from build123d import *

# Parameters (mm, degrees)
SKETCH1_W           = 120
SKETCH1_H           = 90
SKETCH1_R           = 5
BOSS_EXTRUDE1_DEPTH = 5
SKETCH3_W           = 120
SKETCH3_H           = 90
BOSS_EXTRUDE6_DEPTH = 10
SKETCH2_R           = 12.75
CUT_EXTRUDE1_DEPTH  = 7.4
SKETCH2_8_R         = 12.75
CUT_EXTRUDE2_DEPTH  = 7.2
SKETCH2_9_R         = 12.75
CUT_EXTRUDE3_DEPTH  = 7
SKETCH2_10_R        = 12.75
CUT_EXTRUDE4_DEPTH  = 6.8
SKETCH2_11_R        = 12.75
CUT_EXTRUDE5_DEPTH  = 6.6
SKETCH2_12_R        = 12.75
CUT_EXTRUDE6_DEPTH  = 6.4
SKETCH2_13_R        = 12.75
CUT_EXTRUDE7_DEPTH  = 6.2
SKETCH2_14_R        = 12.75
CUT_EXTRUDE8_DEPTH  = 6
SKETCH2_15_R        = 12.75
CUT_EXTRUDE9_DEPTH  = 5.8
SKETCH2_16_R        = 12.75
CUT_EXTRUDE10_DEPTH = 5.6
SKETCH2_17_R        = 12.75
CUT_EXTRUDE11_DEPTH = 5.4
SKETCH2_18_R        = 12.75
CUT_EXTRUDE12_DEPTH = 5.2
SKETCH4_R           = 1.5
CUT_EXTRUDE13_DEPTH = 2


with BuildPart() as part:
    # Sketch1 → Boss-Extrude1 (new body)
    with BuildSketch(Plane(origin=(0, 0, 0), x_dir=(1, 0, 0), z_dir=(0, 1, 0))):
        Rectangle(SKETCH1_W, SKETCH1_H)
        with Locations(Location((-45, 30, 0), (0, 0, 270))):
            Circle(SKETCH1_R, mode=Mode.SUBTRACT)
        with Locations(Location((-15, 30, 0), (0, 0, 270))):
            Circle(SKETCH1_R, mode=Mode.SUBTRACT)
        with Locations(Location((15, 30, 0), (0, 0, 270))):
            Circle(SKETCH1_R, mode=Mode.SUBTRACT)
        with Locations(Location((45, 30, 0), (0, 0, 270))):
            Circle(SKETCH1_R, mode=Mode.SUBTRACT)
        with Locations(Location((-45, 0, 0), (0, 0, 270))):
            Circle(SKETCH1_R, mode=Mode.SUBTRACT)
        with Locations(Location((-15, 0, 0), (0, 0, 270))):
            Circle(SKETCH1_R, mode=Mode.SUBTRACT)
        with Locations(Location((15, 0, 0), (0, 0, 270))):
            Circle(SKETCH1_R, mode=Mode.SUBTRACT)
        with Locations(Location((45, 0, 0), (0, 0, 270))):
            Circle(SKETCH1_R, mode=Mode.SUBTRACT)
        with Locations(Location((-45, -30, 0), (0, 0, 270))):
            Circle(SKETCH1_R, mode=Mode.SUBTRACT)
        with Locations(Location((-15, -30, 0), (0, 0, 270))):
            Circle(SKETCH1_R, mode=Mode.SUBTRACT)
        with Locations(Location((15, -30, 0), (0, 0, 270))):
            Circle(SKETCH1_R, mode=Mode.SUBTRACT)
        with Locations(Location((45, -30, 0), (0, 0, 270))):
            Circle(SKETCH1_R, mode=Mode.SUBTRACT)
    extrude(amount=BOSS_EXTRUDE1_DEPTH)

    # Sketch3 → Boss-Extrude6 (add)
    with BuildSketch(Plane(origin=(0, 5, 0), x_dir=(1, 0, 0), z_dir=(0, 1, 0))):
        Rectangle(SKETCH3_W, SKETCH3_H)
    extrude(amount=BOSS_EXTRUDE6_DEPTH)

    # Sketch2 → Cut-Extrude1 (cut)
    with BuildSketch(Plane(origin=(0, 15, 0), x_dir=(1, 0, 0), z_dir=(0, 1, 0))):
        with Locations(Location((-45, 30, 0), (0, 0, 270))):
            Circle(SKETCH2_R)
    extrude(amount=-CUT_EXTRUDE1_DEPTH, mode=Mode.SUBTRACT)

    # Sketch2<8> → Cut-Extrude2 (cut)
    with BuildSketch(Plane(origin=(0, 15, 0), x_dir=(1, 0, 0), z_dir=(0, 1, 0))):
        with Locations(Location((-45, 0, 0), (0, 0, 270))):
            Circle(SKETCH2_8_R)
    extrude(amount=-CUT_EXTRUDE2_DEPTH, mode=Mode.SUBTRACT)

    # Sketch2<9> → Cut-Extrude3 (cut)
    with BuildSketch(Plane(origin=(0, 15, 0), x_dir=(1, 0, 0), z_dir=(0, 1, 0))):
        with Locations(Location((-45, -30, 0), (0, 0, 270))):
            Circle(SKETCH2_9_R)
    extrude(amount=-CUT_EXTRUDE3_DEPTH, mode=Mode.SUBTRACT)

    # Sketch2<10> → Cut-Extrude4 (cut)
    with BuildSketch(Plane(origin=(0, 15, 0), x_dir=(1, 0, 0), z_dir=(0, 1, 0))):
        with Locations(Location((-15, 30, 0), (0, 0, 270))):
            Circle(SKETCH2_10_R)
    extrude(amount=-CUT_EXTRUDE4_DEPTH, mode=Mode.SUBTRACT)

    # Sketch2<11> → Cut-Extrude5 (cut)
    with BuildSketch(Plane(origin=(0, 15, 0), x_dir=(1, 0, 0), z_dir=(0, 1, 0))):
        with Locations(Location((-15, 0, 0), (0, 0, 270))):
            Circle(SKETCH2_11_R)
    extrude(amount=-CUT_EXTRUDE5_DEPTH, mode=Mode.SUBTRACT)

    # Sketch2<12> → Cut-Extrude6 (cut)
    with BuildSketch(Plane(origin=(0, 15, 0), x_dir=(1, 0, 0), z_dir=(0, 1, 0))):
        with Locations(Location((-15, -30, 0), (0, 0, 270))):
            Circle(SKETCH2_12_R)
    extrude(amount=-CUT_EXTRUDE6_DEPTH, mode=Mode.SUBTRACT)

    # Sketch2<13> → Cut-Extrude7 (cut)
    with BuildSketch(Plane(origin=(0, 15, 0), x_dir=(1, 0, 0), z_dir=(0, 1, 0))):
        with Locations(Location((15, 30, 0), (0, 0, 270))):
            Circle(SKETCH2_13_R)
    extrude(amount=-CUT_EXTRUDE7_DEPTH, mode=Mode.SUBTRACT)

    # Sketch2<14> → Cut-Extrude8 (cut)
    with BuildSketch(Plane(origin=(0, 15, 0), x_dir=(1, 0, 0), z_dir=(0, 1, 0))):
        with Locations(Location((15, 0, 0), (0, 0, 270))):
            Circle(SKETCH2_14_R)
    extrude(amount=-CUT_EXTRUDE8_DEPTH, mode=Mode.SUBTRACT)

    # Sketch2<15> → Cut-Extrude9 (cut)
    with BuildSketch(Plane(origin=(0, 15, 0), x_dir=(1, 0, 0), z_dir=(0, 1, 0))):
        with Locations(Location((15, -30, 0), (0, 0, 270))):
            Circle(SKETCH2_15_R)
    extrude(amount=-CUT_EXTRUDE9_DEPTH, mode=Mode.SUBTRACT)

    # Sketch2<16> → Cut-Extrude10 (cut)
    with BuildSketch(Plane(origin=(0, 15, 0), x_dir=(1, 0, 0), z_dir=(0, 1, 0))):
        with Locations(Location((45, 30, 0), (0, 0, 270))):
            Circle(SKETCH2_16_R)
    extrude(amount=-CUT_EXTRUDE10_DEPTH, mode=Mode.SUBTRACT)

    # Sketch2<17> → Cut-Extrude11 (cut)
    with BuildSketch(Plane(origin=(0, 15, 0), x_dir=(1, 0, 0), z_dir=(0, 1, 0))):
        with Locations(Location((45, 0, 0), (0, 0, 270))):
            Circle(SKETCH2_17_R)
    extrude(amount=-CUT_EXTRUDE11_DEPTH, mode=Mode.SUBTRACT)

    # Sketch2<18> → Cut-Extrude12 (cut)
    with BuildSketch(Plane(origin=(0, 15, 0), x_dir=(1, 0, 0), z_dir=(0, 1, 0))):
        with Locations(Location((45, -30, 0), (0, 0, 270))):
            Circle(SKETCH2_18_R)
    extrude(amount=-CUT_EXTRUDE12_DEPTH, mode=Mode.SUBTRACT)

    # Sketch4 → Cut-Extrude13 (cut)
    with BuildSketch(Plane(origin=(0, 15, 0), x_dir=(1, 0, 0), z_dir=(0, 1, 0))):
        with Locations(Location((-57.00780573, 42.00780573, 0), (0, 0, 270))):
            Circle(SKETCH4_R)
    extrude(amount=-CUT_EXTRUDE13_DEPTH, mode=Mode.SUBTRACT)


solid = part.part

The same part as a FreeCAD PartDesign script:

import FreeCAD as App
import Part
import Sketcher

V = App.Vector
Q = App.Units.Quantity

doc = App.newDocument("Part")
body = doc.addObject("PartDesign::Body", "Body")

# Sketch on XZ plane
sketch1 = body.newObject("Sketcher::SketchObject", "Sketch")
sketch1.AttachmentSupport = (doc.getObject("XZ_Plane"), [""])
sketch1.MapMode = "FlatFace"
sketch1.addGeometry([
    Part.LineSegment(V(-60, -45, 0), V(-60, 45, 0)),  # 0
    Part.LineSegment(V(-60, 45, 0), V(60, 45, 0)),  # 1
    Part.LineSegment(V(60, 45, 0), V(60, -45, 0)),  # 2
    Part.LineSegment(V(60, -45, 0), V(-60, -45, 0)),  # 3
    Part.Circle(V(-45, 30, 0), V(0, 0, 1), 5),  # 4
    Part.Circle(V(-15, 30, 0), V(0, 0, 1), 5),  # 5
    Part.Circle(V(15, 30, 0), V(0, 0, 1), 5),  # 6
    Part.Circle(V(45, 30, 0), V(0, 0, 1), 5),  # 7
    Part.Circle(V(-45, 0, 0), V(0, 0, 1), 5),  # 8
    Part.Circle(V(-15, 0, 0), V(0, 0, 1), 5),  # 9
    Part.Circle(V(-45, -30, 0), V(0, 0, 1), 5),  # 10
    Part.Circle(V(-15, -30, 0), V(0, 0, 1), 5),  # 11
    Part.Circle(V(15, 0, 0), V(0, 0, 1), 5),  # 12
    Part.Circle(V(45, 0, 0), V(0, 0, 1), 5),  # 13
    Part.Circle(V(15, -30, 0), V(0, 0, 1), 5),  # 14
    Part.Circle(V(45, -30, 0), V(0, 0, 1), 5),  # 15
], False)
sketch1.addConstraint([
    Sketcher.Constraint("Coincident", 0, 2, 1, 1),
    Sketcher.Constraint("Coincident", 1, 2, 2, 1),
    Sketcher.Constraint("Coincident", 2, 2, 3, 1),
    Sketcher.Constraint("Coincident", 3, 2, 0, 1),
    Sketcher.Constraint("Vertical", 0),
    Sketcher.Constraint("Horizontal", 1),
    Sketcher.Constraint("Vertical", 2),
    Sketcher.Constraint("Horizontal", 3),
    Sketcher.Constraint("Equal", 4, 5),
    Sketcher.Constraint("Equal", 5, 6),
    Sketcher.Constraint("Equal", 6, 7),
    Sketcher.Constraint("Equal", 7, 8),
    Sketcher.Constraint("Equal", 8, 9),
    Sketcher.Constraint("Equal", 9, 10),
    Sketcher.Constraint("Equal", 10, 11),
    Sketcher.Constraint("Equal", 11, 12),
    Sketcher.Constraint("Equal", 12, 13),
    Sketcher.Constraint("Equal", 13, 14),
    Sketcher.Constraint("Equal", 14, 15),
    Sketcher.Constraint("Symmetric", 7, 3, 10, 3, -1, 1),
    Sketcher.Constraint("Symmetric", 6, 3, 11, 3, -1, 1),
    Sketcher.Constraint("Symmetric", 9, 3, 12, 3, -1, 1),
    Sketcher.Constraint("Symmetric", 8, 3, 13, 3, -1, 1),
    Sketcher.Constraint("Symmetric", 5, 3, 14, 3, -1, 1),
    Sketcher.Constraint("Symmetric", 4, 3, 15, 3, -1, 1),
    Sketcher.Constraint("Symmetric", 0, 2, 2, 2, -1, 1),
    Sketcher.Constraint("Symmetric", 5, 3, 6, 3, -2),
    Sketcher.Constraint("Symmetric", 4, 3, 7, 3, -2),
    Sketcher.Constraint("PointOnObject", 8, 3, -1),
    Sketcher.Constraint("PointOnObject", 9, 3, -1),
    Sketcher.Constraint("Horizontal", 4, 3, 5, 3),
    Sketcher.Constraint("Vertical", 4, 3, 8, 3),
    Sketcher.Constraint("Vertical", 5, 3, 9, 3),
    Sketcher.Constraint("Diameter", 4, Q("10 mm")),
    Sketcher.Constraint("DistanceX", 1, 1, 1, 2, Q("120 mm")),
    Sketcher.Constraint("DistanceY", 0, 1, 0, 2, Q("90 mm")),
    Sketcher.Constraint("DistanceX", 4, 3, -1, 1, Q("45 mm")),
    Sketcher.Constraint("DistanceY", -1, 1, 4, 3, Q("30 mm")),
    Sketcher.Constraint("DistanceX", 5, 3, -1, 1, Q("15 mm")),
])
pad1 = body.newObject("PartDesign::Pad", "Pad")
pad1.Profile = sketch1
pad1.Length = 5
pad1.Reversed = True

# Sketch on XZ plane
sketch2 = body.newObject("Sketcher::SketchObject", "Sketch001")
sketch2.AttachmentSupport = (doc.getObject("XZ_Plane"), [""])
sketch2.MapMode = "FlatFace"
sketch2.AttachmentOffset = App.Placement(V(0, 0, -5), App.Rotation())
sketch2.addGeometry([
    Part.LineSegment(V(-60, -45, 0), V(-60, 45, 0)),
    Part.LineSegment(V(-60, 45, 0), V(60, 45, 0)),
    Part.LineSegment(V(60, 45, 0), V(60, -45, 0)),
    Part.LineSegment(V(60, -45, 0), V(-60, -45, 0)),
], False)
sketch2.addConstraint([
    Sketcher.Constraint("Coincident", 0, 2, 1, 1),
    Sketcher.Constraint("Coincident", 1, 2, 2, 1),
    Sketcher.Constraint("Coincident", 2, 2, 3, 1),
    Sketcher.Constraint("Coincident", 3, 2, 0, 1),
    Sketcher.Constraint("Vertical", 0),
    Sketcher.Constraint("Horizontal", 1),
    Sketcher.Constraint("Vertical", 2),
    Sketcher.Constraint("Horizontal", 3),
    Sketcher.Constraint("Symmetric", 0, 2, 2, 2, -1, 1),
    Sketcher.Constraint("DistanceX", 1, 1, 1, 2, Q("120 mm")),
    Sketcher.Constraint("DistanceY", 0, 1, 0, 2, Q("90 mm")),
])
pad2 = body.newObject("PartDesign::Pad", "Pad001")
pad2.Profile = sketch2
pad2.Length = 10
pad2.Reversed = True

# Sketch on XZ plane
sketch3 = body.newObject("Sketcher::SketchObject", "Sketch002")
sketch3.AttachmentSupport = (doc.getObject("XZ_Plane"), [""])
sketch3.MapMode = "FlatFace"
sketch3.AttachmentOffset = App.Placement(V(0, 0, -15), App.Rotation())
sketch3.addGeometry(Part.Circle(V(-45, -30, 0), V(0, 0, 1), 13), False)
sketch3.addConstraint([
    Sketcher.Constraint("Diameter", 0, Q("25.5 mm")),
    Sketcher.Constraint("DistanceX", 0, 3, -1, 1, Q("45 mm")),
    Sketcher.Constraint("DistanceY", 0, 3, -1, 1, Q("30 mm")),
])
pocket1 = body.newObject("PartDesign::Pocket", "Pocket")
pocket1.Profile = sketch3
pocket1.Length = 7.4
pocket1.Reversed = True

# Sketch on XZ plane
sketch4 = body.newObject("Sketcher::SketchObject", "Sketch003")
sketch4.AttachmentSupport = (doc.getObject("XZ_Plane"), [""])
sketch4.MapMode = "FlatFace"
sketch4.AttachmentOffset = App.Placement(V(0, 0, -15), App.Rotation())
sketch4.addGeometry(Part.Circle(V(-45, 0, 0), V(0, 0, 1), 13), False)
sketch4.addConstraint([
    Sketcher.Constraint("PointOnObject", 0, 3, -1),
    Sketcher.Constraint("Diameter", 0, Q("25.5 mm")),
    Sketcher.Constraint("DistanceX", 0, 3, -1, 1, Q("45 mm")),
])
pocket2 = body.newObject("PartDesign::Pocket", "Pocket001")
pocket2.Profile = sketch4
pocket2.Length = 7.2
pocket2.Reversed = True

# Sketch on XZ plane
sketch5 = body.newObject("Sketcher::SketchObject", "Sketch004")
sketch5.AttachmentSupport = (doc.getObject("XZ_Plane"), [""])
sketch5.MapMode = "FlatFace"
sketch5.AttachmentOffset = App.Placement(V(0, 0, -15), App.Rotation())
sketch5.addGeometry(Part.Circle(V(-45, 30, 0), V(0, 0, 1), 13), False)
sketch5.addConstraint([
    Sketcher.Constraint("Diameter", 0, Q("25.5 mm")),
    Sketcher.Constraint("DistanceX", 0, 3, -1, 1, Q("45 mm")),
    Sketcher.Constraint("DistanceY", -1, 1, 0, 3, Q("30 mm")),
])
pocket3 = body.newObject("PartDesign::Pocket", "Pocket002")
pocket3.Profile = sketch5
pocket3.Length = 7
pocket3.Reversed = True

# Sketch on XZ plane
sketch6 = body.newObject("Sketcher::SketchObject", "Sketch005")
sketch6.AttachmentSupport = (doc.getObject("XZ_Plane"), [""])
sketch6.MapMode = "FlatFace"
sketch6.AttachmentOffset = App.Placement(V(0, 0, -15), App.Rotation())
sketch6.addGeometry(Part.Circle(V(-15, -30, 0), V(0, 0, 1), 13), False)
sketch6.addConstraint([
    Sketcher.Constraint("Diameter", 0, Q("25.5 mm")),
    Sketcher.Constraint("DistanceX", 0, 3, -1, 1, Q("15 mm")),
    Sketcher.Constraint("DistanceY", 0, 3, -1, 1, Q("30 mm")),
])
pocket4 = body.newObject("PartDesign::Pocket", "Pocket003")
pocket4.Profile = sketch6
pocket4.Length = 6.8
pocket4.Reversed = True

# Sketch on XZ plane
sketch7 = body.newObject("Sketcher::SketchObject", "Sketch006")
sketch7.AttachmentSupport = (doc.getObject("XZ_Plane"), [""])
sketch7.MapMode = "FlatFace"
sketch7.AttachmentOffset = App.Placement(V(0, 0, -15), App.Rotation())
sketch7.addGeometry(Part.Circle(V(-15, 0, 0), V(0, 0, 1), 13), False)
sketch7.addConstraint([
    Sketcher.Constraint("PointOnObject", 0, 3, -1),
    Sketcher.Constraint("Diameter", 0, Q("25.5 mm")),
    Sketcher.Constraint("DistanceX", 0, 3, -1, 1, Q("15 mm")),
])
pocket5 = body.newObject("PartDesign::Pocket", "Pocket004")
pocket5.Profile = sketch7
pocket5.Length = 6.6
pocket5.Reversed = True

# Sketch on XZ plane
sketch8 = body.newObject("Sketcher::SketchObject", "Sketch007")
sketch8.AttachmentSupport = (doc.getObject("XZ_Plane"), [""])
sketch8.MapMode = "FlatFace"
sketch8.AttachmentOffset = App.Placement(V(0, 0, -15), App.Rotation())
sketch8.addGeometry(Part.Circle(V(-15, 30, 0), V(0, 0, 1), 13), False)
sketch8.addConstraint([
    Sketcher.Constraint("Diameter", 0, Q("25.5 mm")),
    Sketcher.Constraint("DistanceX", 0, 3, -1, 1, Q("15 mm")),
    Sketcher.Constraint("DistanceY", -1, 1, 0, 3, Q("30 mm")),
])
pocket6 = body.newObject("PartDesign::Pocket", "Pocket005")
pocket6.Profile = sketch8
pocket6.Length = 6.4
pocket6.Reversed = True

# Sketch on XZ plane
sketch9 = body.newObject("Sketcher::SketchObject", "Sketch008")
sketch9.AttachmentSupport = (doc.getObject("XZ_Plane"), [""])
sketch9.MapMode = "FlatFace"
sketch9.AttachmentOffset = App.Placement(V(0, 0, -15), App.Rotation())
sketch9.addGeometry(Part.Circle(V(15, -30, 0), V(0, 0, 1), 13), False)
sketch9.addConstraint([
    Sketcher.Constraint("Diameter", 0, Q("25.5 mm")),
    Sketcher.Constraint("DistanceX", -1, 1, 0, 3, Q("15 mm")),
    Sketcher.Constraint("DistanceY", 0, 3, -1, 1, Q("30 mm")),
])
pocket7 = body.newObject("PartDesign::Pocket", "Pocket006")
pocket7.Profile = sketch9
pocket7.Length = 6.2
pocket7.Reversed = True

# Sketch on XZ plane
sketch10 = body.newObject("Sketcher::SketchObject", "Sketch009")
sketch10.AttachmentSupport = (doc.getObject("XZ_Plane"), [""])
sketch10.MapMode = "FlatFace"
sketch10.AttachmentOffset = App.Placement(V(0, 0, -15), App.Rotation())
sketch10.addGeometry(Part.Circle(V(15, 0, 0), V(0, 0, 1), 13), False)
sketch10.addConstraint([
    Sketcher.Constraint("PointOnObject", 0, 3, -1),
    Sketcher.Constraint("Diameter", 0, Q("25.5 mm")),
    Sketcher.Constraint("DistanceX", -1, 1, 0, 3, Q("15 mm")),
])
pocket8 = body.newObject("PartDesign::Pocket", "Pocket007")
pocket8.Profile = sketch10
pocket8.Length = 6
pocket8.Reversed = True

# Sketch on XZ plane
sketch11 = body.newObject("Sketcher::SketchObject", "Sketch010")
sketch11.AttachmentSupport = (doc.getObject("XZ_Plane"), [""])
sketch11.MapMode = "FlatFace"
sketch11.AttachmentOffset = App.Placement(V(0, 0, -15), App.Rotation())
sketch11.addGeometry(Part.Circle(V(15, 30, 0), V(0, 0, 1), 13), False)
sketch11.addConstraint([
    Sketcher.Constraint("Diameter", 0, Q("25.5 mm")),
    Sketcher.Constraint("DistanceX", -1, 1, 0, 3, Q("15 mm")),
    Sketcher.Constraint("DistanceY", -1, 1, 0, 3, Q("30 mm")),
])
pocket9 = body.newObject("PartDesign::Pocket", "Pocket008")
pocket9.Profile = sketch11
pocket9.Length = 5.8
pocket9.Reversed = True

# Sketch on XZ plane
sketch12 = body.newObject("Sketcher::SketchObject", "Sketch011")
sketch12.AttachmentSupport = (doc.getObject("XZ_Plane"), [""])
sketch12.MapMode = "FlatFace"
sketch12.AttachmentOffset = App.Placement(V(0, 0, -15), App.Rotation())
sketch12.addGeometry(Part.Circle(V(45, -30, 0), V(0, 0, 1), 13), False)
sketch12.addConstraint([
    Sketcher.Constraint("Diameter", 0, Q("25.5 mm")),
    Sketcher.Constraint("DistanceX", -1, 1, 0, 3, Q("45 mm")),
    Sketcher.Constraint("DistanceY", 0, 3, -1, 1, Q("30 mm")),
])
pocket10 = body.newObject("PartDesign::Pocket", "Pocket009")
pocket10.Profile = sketch12
pocket10.Length = 5.6
pocket10.Reversed = True

# Sketch on XZ plane
sketch13 = body.newObject("Sketcher::SketchObject", "Sketch012")
sketch13.AttachmentSupport = (doc.getObject("XZ_Plane"), [""])
sketch13.MapMode = "FlatFace"
sketch13.AttachmentOffset = App.Placement(V(0, 0, -15), App.Rotation())
sketch13.addGeometry(Part.Circle(V(45, 0, 0), V(0, 0, 1), 13), False)
sketch13.addConstraint([
    Sketcher.Constraint("PointOnObject", 0, 3, -1),
    Sketcher.Constraint("Diameter", 0, Q("25.5 mm")),
    Sketcher.Constraint("DistanceX", -1, 1, 0, 3, Q("45 mm")),
])
pocket11 = body.newObject("PartDesign::Pocket", "Pocket010")
pocket11.Profile = sketch13
pocket11.Length = 5.4
pocket11.Reversed = True

# Sketch on XZ plane
sketch14 = body.newObject("Sketcher::SketchObject", "Sketch013")
sketch14.AttachmentSupport = (doc.getObject("XZ_Plane"), [""])
sketch14.MapMode = "FlatFace"
sketch14.AttachmentOffset = App.Placement(V(0, 0, -15), App.Rotation())
sketch14.addGeometry(Part.Circle(V(45, 30, 0), V(0, 0, 1), 13), False)
sketch14.addConstraint([
    Sketcher.Constraint("Diameter", 0, Q("25.5 mm")),
    Sketcher.Constraint("DistanceX", -1, 1, 0, 3, Q("45 mm")),
    Sketcher.Constraint("DistanceY", -1, 1, 0, 3, Q("30 mm")),
])
pocket12 = body.newObject("PartDesign::Pocket", "Pocket011")
pocket12.Profile = sketch14
pocket12.Length = 5.2
pocket12.Reversed = True

# Sketch on XZ plane
sketch15 = body.newObject("Sketcher::SketchObject", "Sketch014")
sketch15.AttachmentSupport = (doc.getObject("XZ_Plane"), [""])
sketch15.MapMode = "FlatFace"
sketch15.AttachmentOffset = App.Placement(V(0, 0, -15), App.Rotation())
sketch15.addGeometry(Part.Circle(V(-57, -42, 0), V(0, 0, 1), 1.5), False)
sketch15.addConstraint([
    Sketcher.Constraint("Diameter", 0, Q("3 mm")),
    Sketcher.Constraint("DistanceX", 0, 3, -1, 1, Q("57.007806 mm")),
    Sketcher.Constraint("DistanceY", 0, 3, -1, 1, Q("42.007806 mm")),
])
pocket13 = body.newObject("PartDesign::Pocket", "Pocket012")
pocket13.Profile = sketch15
pocket13.Length = 2
pocket13.Reversed = True

doc.recompute()
